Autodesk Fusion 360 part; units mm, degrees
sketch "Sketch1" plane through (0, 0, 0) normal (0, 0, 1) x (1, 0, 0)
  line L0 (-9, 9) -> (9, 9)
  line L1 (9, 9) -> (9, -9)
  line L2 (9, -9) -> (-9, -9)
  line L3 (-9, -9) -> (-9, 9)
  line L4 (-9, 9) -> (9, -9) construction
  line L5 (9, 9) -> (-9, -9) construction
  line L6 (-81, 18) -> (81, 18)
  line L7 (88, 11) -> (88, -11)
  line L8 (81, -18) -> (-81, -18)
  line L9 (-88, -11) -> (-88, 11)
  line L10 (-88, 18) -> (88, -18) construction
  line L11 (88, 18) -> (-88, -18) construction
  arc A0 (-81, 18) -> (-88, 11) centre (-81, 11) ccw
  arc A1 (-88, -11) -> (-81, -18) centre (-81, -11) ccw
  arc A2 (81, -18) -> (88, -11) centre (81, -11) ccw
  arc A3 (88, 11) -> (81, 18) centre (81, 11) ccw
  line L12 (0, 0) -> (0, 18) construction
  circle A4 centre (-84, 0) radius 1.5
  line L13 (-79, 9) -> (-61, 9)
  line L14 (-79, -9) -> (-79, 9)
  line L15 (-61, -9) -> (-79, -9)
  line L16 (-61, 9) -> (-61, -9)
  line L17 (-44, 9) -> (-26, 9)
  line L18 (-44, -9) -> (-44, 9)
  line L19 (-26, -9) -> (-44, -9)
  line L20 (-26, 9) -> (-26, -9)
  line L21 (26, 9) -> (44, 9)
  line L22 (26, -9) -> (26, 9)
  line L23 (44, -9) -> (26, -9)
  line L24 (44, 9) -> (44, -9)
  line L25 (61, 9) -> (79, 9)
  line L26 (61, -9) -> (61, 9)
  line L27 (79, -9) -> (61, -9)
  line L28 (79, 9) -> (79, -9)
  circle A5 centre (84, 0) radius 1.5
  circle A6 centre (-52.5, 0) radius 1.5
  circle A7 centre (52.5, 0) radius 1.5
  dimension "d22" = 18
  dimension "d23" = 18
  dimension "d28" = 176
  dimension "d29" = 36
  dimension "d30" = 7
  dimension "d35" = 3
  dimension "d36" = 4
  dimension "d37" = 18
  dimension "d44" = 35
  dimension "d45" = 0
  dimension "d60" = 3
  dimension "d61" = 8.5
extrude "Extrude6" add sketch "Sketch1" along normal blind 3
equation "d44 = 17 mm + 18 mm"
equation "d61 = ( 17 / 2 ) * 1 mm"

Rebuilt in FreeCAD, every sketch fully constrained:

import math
import FreeCAD as App
import Part
import Sketcher
Q = App.Units.Quantity


def add_polygon(sketch, points):
    """Adds a closed chain of lines whose ends are joined by coincident constraints."""
    first, n = sketch.GeometryCount, len(points)
    for a, b in zip(points, points[1:] + points[:1]):
        sketch.addGeometry(Part.LineSegment(App.Vector(*a, 0), App.Vector(*b, 0)), False)
    for i in range(n):
        sketch.addConstraint(Sketcher.Constraint("Coincident", first + i, 2, first + (i + 1) % n, 1))

doc = App.newDocument("Part")
body = doc.addObject("PartDesign::Body", "Body")

# Sketch on XY plane
sketch1 = body.newObject("Sketcher::SketchObject", "Sketch")
sketch1.AttachmentSupport = (doc.getObject("XY_Plane"), [""])
sketch1.MapMode = "FlatFace"
sketch1.addGeometry(Part.LineSegment(App.Vector(81, 18, 0), App.Vector(-81, 18, 0)), False)  # 0
sketch1.addGeometry(Part.ArcOfCircle(Part.Circle(App.Vector(-81, 11, 0), App.Vector(0, 0, 1), 7), math.radians(90), math.radians(180)), False)  # 1
sketch1.addGeometry(Part.LineSegment(App.Vector(-88, 11, 0), App.Vector(-88, -11, 0)), False)  # 2
sketch1.addGeometry(Part.ArcOfCircle(Part.Circle(App.Vector(-81, -11, 0), App.Vector(0, 0, 1), 7), math.radians(180), math.radians(270)), False)  # 3
sketch1.addGeometry(Part.LineSegment(App.Vector(-81, -18, 0), App.Vector(81, -18, 0)), False)  # 4
sketch1.addGeometry(Part.ArcOfCircle(Part.Circle(App.Vector(81, -11, 0), App.Vector(0, 0, 1), 7), math.radians(-90), math.radians(0)), False)  # 5
sketch1.addGeometry(Part.LineSegment(App.Vector(88, -11, 0), App.Vector(88, 11, 0)), False)  # 6
sketch1.addGeometry(Part.ArcOfCircle(Part.Circle(App.Vector(81, 11, 0), App.Vector(0, 0, 1), 7), math.radians(0), math.radians(90)), False)  # 7
sketch1.addGeometry(Part.Circle(App.Vector(-84, 0, 0), App.Vector(0, 0, 1), 1.5), False)  # 8
add_polygon(sketch1, [(-79, -9), (-79, 9), (-61, 9), (-61, -9)])  # lines 9-12
sketch1.addGeometry(Part.Circle(App.Vector(-52.5, 0, 0), App.Vector(0, 0, 1), 1.5), False)  # 13
add_polygon(sketch1, [(-44, -9), (-44, 9), (-26, 9), (-26, -9)])  # lines 14-17
add_polygon(sketch1, [(-9, -9), (-9, 9), (9, 9), (9, -9)])  # lines 18-21
add_polygon(sketch1, [(26, -9), (26, 9), (44, 9), (44, -9)])  # lines 22-25
sketch1.addGeometry(Part.Circle(App.Vector(52.5, 0, 0), App.Vector(0, 0, 1), 1.5), False)  # 26
add_polygon(sketch1, [(61, -9), (61, 9), (79, 9), (79, -9)])  # lines 27-30
sketch1.addGeometry(Part.Circle(App.Vector(84, 0, 0), App.Vector(0, 0, 1), 1.5), False)  # 31
sketch1.addConstraint([
    Sketcher.Constraint("Tangent", 0, 2, 1, 1),
    Sketcher.Constraint("Tangent", 1, 2, 2, 1),
    Sketcher.Constraint("Tangent", 2, 2, 3, 1),
    Sketcher.Constraint("Tangent", 3, 2, 4, 1),
    Sketcher.Constraint("Tangent", 4, 2, 5, 1),
    Sketcher.Constraint("Tangent", 5, 2, 6, 1),
    Sketcher.Constraint("Tangent", 6, 2, 7, 1),
    Sketcher.Constraint("Tangent", 7, 2, 0, 1),
    Sketcher.Constraint("Horizontal", 0),
    Sketcher.Constraint("Vertical", 2),
    Sketcher.Constraint("Horizontal", 4),
    Sketcher.Constraint("Vertical", 6),
    Sketcher.Constraint("Vertical", 9),
    Sketcher.Constraint("Horizontal", 10),
    Sketcher.Constraint("Vertical", 11),
    Sketcher.Constraint("Horizontal", 12),
    Sketcher.Constraint("Vertical", 14),
    Sketcher.Constraint("Horizontal", 15),
    Sketcher.Constraint("Vertical", 16),
    Sketcher.Constraint("Horizontal", 17),
    Sketcher.Constraint("Vertical", 18),
    Sketcher.Constraint("Horizontal", 19),
    Sketcher.Constraint("Vertical", 20),
    Sketcher.Constraint("Horizontal", 21),
    Sketcher.Constraint("Vertical", 22),
    Sketcher.Constraint("Horizontal", 23),
    Sketcher.Constraint("Vertical", 24),
    Sketcher.Constraint("Horizontal", 25),
    Sketcher.Constraint("Vertical", 27),
    Sketcher.Constraint("Horizontal", 28),
    Sketcher.Constraint("Vertical", 29),
    Sketcher.Constraint("Horizontal", 30),
    Sketcher.Constraint("Equal", 1, 3),
    Sketcher.Constraint("Equal", 3, 5),
    Sketcher.Constraint("Equal", 5, 7),
    Sketcher.Constraint("Equal", 8, 13),
    Sketcher.Constraint("Equal", 13, 26),
    Sketcher.Constraint("Equal", 26, 31),
    Sketcher.Constraint("Symmetric", 1, 3, 5, 3, -1, 1),
    Sketcher.Constraint("Symmetric", 13, 3, 26, 3, -1, 1),
    Sketcher.Constraint("Symmetric", 8, 3, 31, 3, -1, 1),
    Sketcher.Constraint("Symmetric", 18, 2, 20, 2, -1, 1),
    Sketcher.Constraint("Symmetric", 16, 2, 22, 2, -1, 1),
    Sketcher.Constraint("Symmetric", 14, 2, 24, 2, -1, 1),
    Sketcher.Constraint("Symmetric", 11, 2, 27, 2, -1, 1),
    Sketcher.Constraint("Symmetric", 9, 2, 29, 2, -1, 1),
    Sketcher.Constraint("PointOnObject", 8, 3, -1),
    Sketcher.Constraint("PointOnObject", 13, 3, -1),
    Sketcher.Constraint("Horizontal", 10, 2, 14, 2),
    Sketcher.Constraint("Horizontal", 12, 2, 16, 2),
    Sketcher.Constraint("Horizontal", 15, 2, 18, 2),
    Sketcher.Constraint("Horizontal", 17, 2, 20, 2),
    Sketcher.Constraint("Equal", 12, 15),
    Sketcher.Constraint("Equal", 17, 19),
    Sketcher.Constraint("Equal", 30, 9),
    Sketcher.Constraint("Diameter", 8, Q("3 mm")),
    Sketcher.Constraint("Radius", 1, Q("7 mm")),
    Sketcher.Constraint("DistanceX", 10, 1, 10, 2, Q("18 mm")),
    Sketcher.Constraint("DistanceY", -1, 1, 0, 2, Q("18 mm")),
    Sketcher.Constraint("DistanceX", 8, 3, 1, 3, Q("3 mm")),
    Sketcher.Constraint("DistanceX", 9, 2, 14, 2, Q("35 mm")),
    Sketcher.Constraint("DistanceX", 14, 2, 18, 2, Q("35 mm")),
    Sketcher.Constraint("DistanceX", 10, 2, 13, 3, Q("8.5 mm")),
    Sketcher.Constraint("DistanceX", 0, 2, 0, 1, Q("162 mm")),
])
pad1 = body.newObject("PartDesign::Pad", "Pad")
pad1.Profile = sketch1
pad1.Length = 3

doc.recompute()
